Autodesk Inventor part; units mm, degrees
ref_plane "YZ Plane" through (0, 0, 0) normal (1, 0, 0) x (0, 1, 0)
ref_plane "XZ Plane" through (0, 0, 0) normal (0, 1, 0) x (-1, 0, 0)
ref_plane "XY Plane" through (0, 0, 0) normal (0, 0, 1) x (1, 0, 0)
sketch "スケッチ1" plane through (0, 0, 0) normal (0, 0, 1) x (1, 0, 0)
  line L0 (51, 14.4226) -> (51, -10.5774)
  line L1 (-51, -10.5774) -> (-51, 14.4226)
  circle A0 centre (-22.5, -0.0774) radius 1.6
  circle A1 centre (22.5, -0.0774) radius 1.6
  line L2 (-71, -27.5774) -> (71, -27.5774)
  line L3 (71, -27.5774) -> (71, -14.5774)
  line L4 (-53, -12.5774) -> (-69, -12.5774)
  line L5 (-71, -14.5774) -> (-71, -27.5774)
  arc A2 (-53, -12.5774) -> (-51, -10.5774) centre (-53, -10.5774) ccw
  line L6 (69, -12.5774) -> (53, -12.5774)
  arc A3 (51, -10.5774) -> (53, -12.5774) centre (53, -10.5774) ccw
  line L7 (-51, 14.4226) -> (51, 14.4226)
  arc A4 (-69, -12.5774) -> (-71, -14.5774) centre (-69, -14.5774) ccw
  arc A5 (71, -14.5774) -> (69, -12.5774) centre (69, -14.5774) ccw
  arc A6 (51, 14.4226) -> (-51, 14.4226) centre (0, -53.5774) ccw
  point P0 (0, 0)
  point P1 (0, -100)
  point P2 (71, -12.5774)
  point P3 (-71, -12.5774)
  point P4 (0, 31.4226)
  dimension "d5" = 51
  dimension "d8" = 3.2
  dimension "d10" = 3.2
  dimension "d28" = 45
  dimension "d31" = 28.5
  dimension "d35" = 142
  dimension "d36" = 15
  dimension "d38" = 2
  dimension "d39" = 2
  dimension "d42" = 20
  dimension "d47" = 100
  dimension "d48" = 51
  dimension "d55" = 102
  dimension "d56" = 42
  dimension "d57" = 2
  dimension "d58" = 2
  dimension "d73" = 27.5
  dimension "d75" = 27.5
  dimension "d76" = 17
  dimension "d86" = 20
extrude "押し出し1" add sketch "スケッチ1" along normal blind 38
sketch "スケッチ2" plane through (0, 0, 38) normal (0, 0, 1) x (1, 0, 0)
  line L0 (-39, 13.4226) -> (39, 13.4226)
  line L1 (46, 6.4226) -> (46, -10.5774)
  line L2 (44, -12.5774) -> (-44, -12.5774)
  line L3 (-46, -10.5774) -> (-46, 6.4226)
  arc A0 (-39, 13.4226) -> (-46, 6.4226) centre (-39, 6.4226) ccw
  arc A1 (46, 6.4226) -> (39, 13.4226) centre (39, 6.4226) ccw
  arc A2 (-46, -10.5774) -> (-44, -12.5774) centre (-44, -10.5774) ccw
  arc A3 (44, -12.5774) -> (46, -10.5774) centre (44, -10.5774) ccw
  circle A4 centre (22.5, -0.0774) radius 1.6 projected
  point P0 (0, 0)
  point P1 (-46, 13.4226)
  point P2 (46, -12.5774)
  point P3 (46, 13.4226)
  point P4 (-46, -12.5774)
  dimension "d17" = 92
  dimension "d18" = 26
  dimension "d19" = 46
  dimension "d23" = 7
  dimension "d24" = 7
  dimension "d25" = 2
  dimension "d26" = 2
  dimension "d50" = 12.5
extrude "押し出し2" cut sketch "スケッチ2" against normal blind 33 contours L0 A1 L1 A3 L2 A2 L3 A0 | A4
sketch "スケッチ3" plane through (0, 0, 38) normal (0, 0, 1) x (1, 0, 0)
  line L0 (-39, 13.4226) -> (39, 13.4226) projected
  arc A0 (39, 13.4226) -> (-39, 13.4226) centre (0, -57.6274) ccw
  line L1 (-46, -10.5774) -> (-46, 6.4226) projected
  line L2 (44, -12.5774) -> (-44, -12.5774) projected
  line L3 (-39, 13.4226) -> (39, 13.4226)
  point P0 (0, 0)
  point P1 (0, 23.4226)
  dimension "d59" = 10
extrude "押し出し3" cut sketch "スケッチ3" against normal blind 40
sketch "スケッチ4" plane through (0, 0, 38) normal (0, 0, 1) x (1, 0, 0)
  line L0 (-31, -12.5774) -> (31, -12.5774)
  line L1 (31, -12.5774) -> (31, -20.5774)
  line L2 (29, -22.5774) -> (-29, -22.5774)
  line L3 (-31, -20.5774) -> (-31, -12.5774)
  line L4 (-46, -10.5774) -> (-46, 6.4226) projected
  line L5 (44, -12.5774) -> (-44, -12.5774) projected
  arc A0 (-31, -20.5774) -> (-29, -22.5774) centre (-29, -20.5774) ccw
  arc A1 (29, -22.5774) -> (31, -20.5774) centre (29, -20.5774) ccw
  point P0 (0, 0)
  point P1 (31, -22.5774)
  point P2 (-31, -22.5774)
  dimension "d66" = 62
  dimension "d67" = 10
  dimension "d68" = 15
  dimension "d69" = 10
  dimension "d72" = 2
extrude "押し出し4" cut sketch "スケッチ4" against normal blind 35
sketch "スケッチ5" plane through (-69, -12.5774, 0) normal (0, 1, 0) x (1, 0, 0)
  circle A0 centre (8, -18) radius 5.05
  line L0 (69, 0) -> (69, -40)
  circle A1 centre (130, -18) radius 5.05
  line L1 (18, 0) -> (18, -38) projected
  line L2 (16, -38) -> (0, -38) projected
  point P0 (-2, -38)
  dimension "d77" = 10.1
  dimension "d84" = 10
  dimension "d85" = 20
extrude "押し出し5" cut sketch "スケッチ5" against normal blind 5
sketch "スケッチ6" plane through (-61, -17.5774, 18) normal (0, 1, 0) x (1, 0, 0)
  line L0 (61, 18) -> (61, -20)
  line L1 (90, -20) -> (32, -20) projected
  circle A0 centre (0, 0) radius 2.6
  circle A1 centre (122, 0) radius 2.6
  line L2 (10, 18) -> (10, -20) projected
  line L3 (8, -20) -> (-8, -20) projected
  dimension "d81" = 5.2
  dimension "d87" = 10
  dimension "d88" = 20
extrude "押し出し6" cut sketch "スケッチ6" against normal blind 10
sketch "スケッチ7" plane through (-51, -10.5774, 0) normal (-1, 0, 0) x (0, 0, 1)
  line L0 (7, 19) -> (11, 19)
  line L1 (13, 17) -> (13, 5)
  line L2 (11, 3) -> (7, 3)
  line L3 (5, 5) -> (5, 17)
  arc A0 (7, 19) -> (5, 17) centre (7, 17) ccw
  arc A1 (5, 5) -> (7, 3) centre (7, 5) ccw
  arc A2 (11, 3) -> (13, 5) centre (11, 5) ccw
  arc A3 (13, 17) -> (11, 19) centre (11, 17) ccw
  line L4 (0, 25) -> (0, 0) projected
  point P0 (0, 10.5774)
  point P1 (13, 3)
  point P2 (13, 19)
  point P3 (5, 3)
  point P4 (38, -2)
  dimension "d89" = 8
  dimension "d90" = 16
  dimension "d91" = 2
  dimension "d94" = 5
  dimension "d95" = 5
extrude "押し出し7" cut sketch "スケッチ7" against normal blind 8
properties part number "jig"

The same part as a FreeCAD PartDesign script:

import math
import FreeCAD as App
import Part
import Sketcher

V = App.Vector

doc = App.newDocument("Part")
params = doc.addObject("Spreadsheet::Sheet", "Params")
for row, (alias, value) in enumerate([
    ("sketch1_radius", "2 mm"),
    ("sketch1_diameter", "3.2 mm"),
    ("sketch1_width", "142 mm"),
    ("sketch1_radius2", "85 mm"),
    ("pad1_length", "38 mm"),
    ("sketch2_radius", "7 mm"),
    ("sketch2_radius2", "2 mm"),
    ("pocket1_length", "33 mm"),
    ("sketch3_width", "78 mm"),
    ("sketch3_radius", "81.05 mm"),
    ("pocket2_length", "40 mm"),
    ("sketch4_radius", "2 mm"),
    ("sketch4_width", "62 mm"),
    ("pocket3_length", "35 mm"),
    ("sketch5_diameter", "10.1 mm"),
    ("pocket4_length", "5 mm"),
    ("sketch6_diameter", "5.2 mm"),
    ("pocket5_length", "10 mm"),
    ("sketch7_radius", "2 mm"),
    ("sketch7_width", "12 mm"),
    ("pocket6_length", "8 mm"),
], start=1):
    params.set(f"A{row}", alias)
    params.set(f"B{row}", "=" + value)
    params.setAlias(f"B{row}", alias)

body = doc.addObject("PartDesign::Body", "Body")

# Sketch on XY plane
sketch1 = body.newObject("Sketcher::SketchObject", "Sketch")
sketch1.AttachmentSupport = (doc.getObject("XY_Plane"), [""])
sketch1.MapMode = "FlatFace"
sketch1.addGeometry([
    Part.LineSegment(V(51, -10.5774, 0), V(51, 14.4226, 0)),  # 0
    Part.ArcOfCircle(Part.Circle(V(0, -53.5774, 0), V(0, 0, 1), 85), math.radians(53.130102), math.radians(126.869898)),  # 1
    Part.LineSegment(V(-51, 14.4226, 0), V(-51, -10.5774, 0)),  # 2
    Part.ArcOfCircle(Part.Circle(V(-53, -10.5774, 0), V(0, 0, 1), 2), math.radians(-90), math.radians(0)),  # 3
    Part.LineSegment(V(-53, -12.5774, 0), V(-69, -12.5774, 0)),  # 4
    Part.ArcOfCircle(Part.Circle(V(-69, -14.5774, 0), V(0, 0, 1), 2), math.radians(90), math.radians(180)),  # 5
    Part.LineSegment(V(-71, -14.5774, 0), V(-71, -27.5774, 0)),  # 6
    Part.LineSegment(V(-71, -27.5774, 0), V(71, -27.5774, 0)),  # 7
    Part.LineSegment(V(71, -27.5774, 0), V(71, -14.5774, 0)),  # 8
    Part.ArcOfCircle(Part.Circle(V(69, -14.5774, 0), V(0, 0, 1), 2), math.radians(0), math.radians(90)),  # 9
    Part.LineSegment(V(69, -12.5774, 0), V(53, -12.5774, 0)),  # 10
    Part.ArcOfCircle(Part.Circle(V(53, -10.5774, 0), V(0, 0, 1), 2), math.radians(180), math.radians(270)),  # 11
    Part.Circle(V(-22.5, -0.0774, 0), V(0, 0, 1), 1.6),  # 12
    Part.Circle(V(22.5, -0.0774, 0), V(0, 0, 1), 1.6),  # 13
], False)
sketch1.addConstraint([
    Sketcher.Constraint("Coincident", 0, 2, 1, 1),
    Sketcher.Constraint("Coincident", 1, 2, 2, 1),
    Sketcher.Constraint("Tangent", 2, 2, 3, 2),
    Sketcher.Constraint("Tangent", 3, 1, 4, 1),
    Sketcher.Constraint("Tangent", 4, 2, 5, 1),
    Sketcher.Constraint("Tangent", 5, 2, 6, 1),
    Sketcher.Constraint("Coincident", 6, 2, 7, 1),
    Sketcher.Constraint("Coincident", 7, 2, 8, 1),
    Sketcher.Constraint("Tangent", 8, 2, 9, 1),
    Sketcher.Constraint("Tangent", 9, 2, 10, 1),
    Sketcher.Constraint("Tangent", 10, 2, 11, 2),
    Sketcher.Constraint("Tangent", 11, 1, 0, 1),
    Sketcher.Constraint("Vertical", 0),
    Sketcher.Constraint("Vertical", 2),
    Sketcher.Constraint("Horizontal", 4),
    Sketcher.Constraint("Vertical", 6),
    Sketcher.Constraint("Horizontal", 7),
    Sketcher.Constraint("Vertical", 8),
    Sketcher.Constraint("Horizontal", 10),
    Sketcher.Constraint("Equal", 3, 5),
    Sketcher.Constraint("Equal", 5, 9),
    Sketcher.Constraint("Equal", 9, 11),
    Sketcher.Constraint("Equal", 12, 13),
    Sketcher.Constraint("Symmetric", 5, 3, 9, 3, -2),
    Sketcher.Constraint("Symmetric", 12, 3, 13, 3, -2),
    Sketcher.Constraint("Symmetric", 0, 2, 1, 2, -2),
    Sketcher.Constraint("Radius", 3, 2.0),
    Sketcher.Constraint("Diameter", 12, 3.2),
    Sketcher.Constraint("DistanceX", 7, 1, 7, 2, 142.0),
    Sketcher.Constraint("DistanceX", -1, 1, 0, 2, 51.0),
    Sketcher.Constraint("Radius", 1, 85.0),
    Sketcher.Constraint("DistanceX", 12, 3, 13, 3, 45.0),
    Sketcher.Constraint("DistanceY", 6, 2, 4, 2, 15.0),
    Sketcher.Constraint("DistanceY", 7, 2, 0, 2, 42.0),
    Sketcher.Constraint("DistanceY", 7, 2, 13, 3, 27.5),
    Sketcher.Constraint("DistanceY", 1, 3, -1, 1, 53.5774),
])
sketch1.setExpression("Constraints[26]", "Params.sketch1_radius")
sketch1.setExpression("Constraints[27]", "Params.sketch1_diameter")
sketch1.setExpression("Constraints[28]", "Params.sketch1_width")
sketch1.setExpression("Constraints[30]", "Params.sketch1_radius2")
pad1 = body.newObject("PartDesign::Pad", "Pad")
pad1.Profile = sketch1
pad1.setExpression("Length", "Params.pad1_length")

# Sketch on XY plane
sketch2 = body.newObject("Sketcher::SketchObject", "Sketch001")
sketch2.AttachmentSupport = (doc.getObject("XY_Plane"), [""])
sketch2.MapMode = "FlatFace"
sketch2.AttachmentOffset = App.Placement(V(0, 0, 38), App.Rotation())
sketch2.addGeometry([
    Part.LineSegment(V(39, 13.4226, 0), V(-39, 13.4226, 0)),  # 0
    Part.ArcOfCircle(Part.Circle(V(-39, 6.4226, 0), V(0, 0, 1), 7), math.radians(90), math.radians(180)),  # 1
    Part.LineSegment(V(-46, 6.4226, 0), V(-46, -10.5774, 0)),  # 2
    Part.ArcOfCircle(Part.Circle(V(-44, -10.5774, 0), V(0, 0, 1), 2), math.radians(180), math.radians(270)),  # 3
    Part.LineSegment(V(-44, -12.5774, 0), V(44, -12.5774, 0)),  # 4
    Part.ArcOfCircle(Part.Circle(V(44, -10.5774, 0), V(0, 0, 1), 2), math.radians(-90), math.radians(0)),  # 5
    Part.LineSegment(V(46, -10.5774, 0), V(46, 6.4226, 0)),  # 6
    Part.ArcOfCircle(Part.Circle(V(39, 6.4226, 0), V(0, 0, 1), 7), math.radians(0), math.radians(90)),  # 7
], False)
sketch2.addConstraint([
    Sketcher.Constraint("Tangent", 0, 2, 1, 1),
    Sketcher.Constraint("Tangent", 1, 2, 2, 1),
    Sketcher.Constraint("Tangent", 2, 2, 3, 1),
    Sketcher.Constraint("Tangent", 3, 2, 4, 1),
    Sketcher.Constraint("Tangent", 4, 2, 5, 1),
    Sketcher.Constraint("Tangent", 5, 2, 6, 1),
    Sketcher.Constraint("Tangent", 6, 2, 7, 1),
    Sketcher.Constraint("Tangent", 7, 2, 0, 1),
    Sketcher.Constraint("Horizontal", 0),
    Sketcher.Constraint("Vertical", 2),
    Sketcher.Constraint("Horizontal", 4),
    Sketcher.Constraint("Vertical", 6),
    Sketcher.Constraint("Equal", 3, 5),
    Sketcher.Constraint("Equal", 1, 7),
    Sketcher.Constraint("Radius", 1, 7.0),
    Sketcher.Constraint("Radius", 3, 2.0),
    Sketcher.Constraint("DistanceX", 1, 2, -1, 1, 46.0),
    Sketcher.Constraint("DistanceX", -1, 1, 5, 2, 46.0),
    Sketcher.Constraint("DistanceY", 3, 2, 0, 2, 26.0),
    Sketcher.Constraint("DistanceY", -1, 1, 1, 3, 6.4226),
])
sketch2.setExpression("Constraints[14]", "Params.sketch2_radius")
sketch2.setExpression("Constraints[15]", "Params.sketch2_radius2")
pocket1 = body.newObject("PartDesign::Pocket", "Pocket")
pocket1.Profile = sketch2
pocket1.setExpression("Length", "Params.pocket1_length")

# Sketch on XY plane
sketch3 = body.newObject("Sketcher::SketchObject", "Sketch002")
sketch3.AttachmentSupport = (doc.getObject("XY_Plane"), [""])
sketch3.MapMode = "FlatFace"
sketch3.AttachmentOffset = App.Placement(V(0, 0, 38), App.Rotation())
sketch3.addGeometry([
    Part.ArcOfCircle(Part.Circle(V(0, -57.6274, 0), V(0, 0, 1), 81.05), math.radians(61.237211), math.radians(118.762789)),
    Part.LineSegment(V(-39, 13.4226, 0), V(39, 13.4226, 0)),
], False)
sketch3.addConstraint([
    Sketcher.Constraint("Coincident", 0, 1, 1, 2),
    Sketcher.Constraint("Coincident", 1, 1, 0, 2),
    Sketcher.Constraint("Horizontal", 1),
    Sketcher.Constraint("PointOnObject", 0, 3, -2),
    Sketcher.Constraint("DistanceX", 1, 1, 1, 2, 78.0),
    Sketcher.Constraint("Radius", 0, 81.05),
    Sketcher.Constraint("DistanceY", 0, 3, -1, 1, 57.6274),
])
sketch3.setExpression("Constraints[4]", "Params.sketch3_width")
sketch3.setExpression("Constraints[5]", "Params.sketch3_radius")
pocket2 = body.newObject("PartDesign::Pocket", "Pocket001")
pocket2.Profile = sketch3
pocket2.setExpression("Length", "Params.pocket2_length")

# Sketch on XY plane
sketch4 = body.newObject("Sketcher::SketchObject", "Sketch003")
sketch4.AttachmentSupport = (doc.getObject("XY_Plane"), [""])
sketch4.MapMode = "FlatFace"
sketch4.AttachmentOffset = App.Placement(V(0, 0, 38), App.Rotation())
sketch4.addGeometry([
    Part.LineSegment(V(31, -12.5774, 0), V(-31, -12.5774, 0)),  # 0
    Part.LineSegment(V(-31, -12.5774, 0), V(-31, -20.5774, 0)),  # 1
    Part.ArcOfCircle(Part.Circle(V(-29, -20.5774, 0), V(0, 0, 1), 2), math.radians(180), math.radians(270)),  # 2
    Part.LineSegment(V(-29, -22.5774, 0), V(29, -22.5774, 0)),  # 3
    Part.ArcOfCircle(Part.Circle(V(29, -20.5774, 0), V(0, 0, 1), 2), math.radians(-90), math.radians(0)),  # 4
    Part.LineSegment(V(31, -20.5774, 0), V(31, -12.5774, 0)),  # 5
], False)
sketch4.addConstraint([
    Sketcher.Constraint("Coincident", 0, 2, 1, 1),
    Sketcher.Constraint("Tangent", 1, 2, 2, 1),
    Sketcher.Constraint("Tangent", 2, 2, 3, 1),
    Sketcher.Constraint("Tangent", 3, 2, 4, 1),
    Sketcher.Constraint("Tangent", 4, 2, 5, 1),
    Sketcher.Constraint("Coincident", 5, 2, 0, 1),
    Sketcher.Constraint("Horizontal", 0),
    Sketcher.Constraint("Vertical", 1),
    Sketcher.Constraint("Horizontal", 3),
    Sketcher.Constraint("Vertical", 5),
    Sketcher.Constraint("Equal", 2, 4),
    Sketcher.Constraint("Radius", 2, 2.0),
    Sketcher.Constraint("DistanceX", 0, 2, 0, 1, 62.0),
    Sketcher.Constraint("DistanceY", 2, 2, 0, 2, 10.0),
    Sketcher.Constraint("DistanceX", 2, 3, -1, 1, 29.0),
    Sketcher.Constraint("DistanceY", 2, 3, -1, 1, 20.5774),
])
sketch4.setExpression("Constraints[11]", "Params.sketch4_radius")
sketch4.setExpression("Constraints[12]", "Params.sketch4_width")
pocket3 = body.newObject("PartDesign::Pocket", "Pocket002")
pocket3.Profile = sketch4
pocket3.setExpression("Length", "Params.pocket3_length")

# Sketch on XZ plane
sketch5 = body.newObject("Sketcher::SketchObject", "Sketch004")
sketch5.AttachmentSupport = (doc.getObject("XZ_Plane"), [""])
sketch5.MapMode = "FlatFace"
sketch5.AttachmentOffset = App.Placement(V(0, 0, 12.5774), App.Rotation())
sketch5.addGeometry([
    Part.Circle(V(-61, 18, 0), V(0, 0, 1), 5.05),
    Part.Circle(V(61, 18, 0), V(0, 0, 1), 5.05),
], False)
sketch5.addConstraint([
    Sketcher.Constraint("Equal", 0, 1),
    Sketcher.Constraint("Symmetric", 0, 3, 1, 3, -2),
    Sketcher.Constraint("Diameter", 0, 10.1),
    Sketcher.Constraint("DistanceX", 0, 3, -1, 1, 61.0),
    Sketcher.Constraint("DistanceY", -1, 1, 0, 3, 18.0),
])
sketch5.setExpression("Constraints[2]", "Params.sketch5_diameter")
pocket4 = body.newObject("PartDesign::Pocket", "Pocket003")
pocket4.Profile = sketch5
pocket4.setExpression("Length", "Params.pocket4_length")
pocket4.Reversed = True

# Sketch on XZ plane
sketch6 = body.newObject("Sketcher::SketchObject", "Sketch005")
sketch6.AttachmentSupport = (doc.getObject("XZ_Plane"), [""])
sketch6.MapMode = "FlatFace"
sketch6.AttachmentOffset = App.Placement(V(0, 0, 17.5774), App.Rotation())
sketch6.addGeometry([
    Part.Circle(V(-61, 18, 0), V(0, 0, 1), 2.6),
    Part.Circle(V(61, 18, 0), V(0, 0, 1), 2.6),
], False)
sketch6.addConstraint([
    Sketcher.Constraint("Equal", 0, 1),
    Sketcher.Constraint("Symmetric", 0, 3, 1, 3, -2),
    Sketcher.Constraint("Diameter", 0, 5.2),
    Sketcher.Constraint("DistanceX", 0, 3, -1, 1, 61.0),
    Sketcher.Constraint("DistanceY", -1, 1, 0, 3, 18.0),
])
sketch6.setExpression("Constraints[2]", "Params.sketch6_diameter")
pocket5 = body.newObject("PartDesign::Pocket", "Pocket004")
pocket5.Profile = sketch6
pocket5.setExpression("Length", "Params.pocket5_length")
pocket5.Reversed = True

# Sketch on YZ plane
sketch7 = body.newObject("Sketcher::SketchObject", "Sketch006")
sketch7.AttachmentSupport = (doc.getObject("YZ_Plane"), [""])
sketch7.MapMode = "FlatFace"
sketch7.AttachmentOffset = App.Placement(V(0, 0, -51), App.Rotation())
sketch7.addGeometry([
    Part.LineSegment(V(8.4226, 11, 0), V(8.4226, 7, 0)),  # 0
    Part.ArcOfCircle(Part.Circle(V(6.4226, 7, 0), V(0, 0, 1), 2), math.radians(-90), math.radians(0)),  # 1
    Part.LineSegment(V(6.4226, 5, 0), V(-5.5774, 5, 0)),  # 2
    Part.ArcOfCircle(Part.Circle(V(-5.5774, 7, 0), V(0, 0, 1), 2), math.radians(180), math.radians(270)),  # 3
    Part.LineSegment(V(-7.5774, 7, 0), V(-7.5774, 11, 0)),  # 4
    Part.ArcOfCircle(Part.Circle(V(-5.5774, 11, 0), V(0, 0, 1), 2), math.radians(90), math.radians(180)),  # 5
    Part.LineSegment(V(-5.5774, 13, 0), V(6.4226, 13, 0)),  # 6
    Part.ArcOfCircle(Part.Circle(V(6.4226, 11, 0), V(0, 0, 1), 2), math.radians(0), math.radians(90)),  # 7
], False)
sketch7.addConstraint([
    Sketcher.Constraint("Tangent", 0, 2, 1, 2),
    Sketcher.Constraint("Tangent", 1, 1, 2, 1),
    Sketcher.Constraint("Tangent", 2, 2, 3, 2),
    Sketcher.Constraint("Tangent", 3, 1, 4, 1),
    Sketcher.Constraint("Tangent", 4, 2, 5, 2),
    Sketcher.Constraint("Tangent", 5, 1, 6, 1),
    Sketcher.Constraint("Tangent", 6, 2, 7, 2),
    Sketcher.Constraint("Tangent", 7, 1, 0, 1),
    Sketcher.Constraint("Vertical", 0),
    Sketcher.Constraint("Horizontal", 2),
    Sketcher.Constraint("Vertical", 4),
    Sketcher.Constraint("Horizontal", 6),
    Sketcher.Constraint("Equal", 1, 3),
    Sketcher.Constraint("Equal", 3, 5),
    Sketcher.Constraint("Equal", 5, 7),
    Sketcher.Constraint("Radius", 1, 2.0),
    Sketcher.Constraint("DistanceY", -1, 1, 1, 1, 5.0),
    Sketcher.Constraint("DistanceY", 2, 2, 5, 1, 8.0),
    Sketcher.Constraint("DistanceX", 2, 2, 2, 1, 12.0),
    Sketcher.Constraint("DistanceX", -1, 1, 1, 3, 6.4226),
])
sketch7.setExpression("Constraints[15]", "Params.sketch7_radius")
sketch7.setExpression("Constraints[18]", "Params.sketch7_width")
pocket6 = body.newObject("PartDesign::Pocket", "Pocket005")
pocket6.Profile = sketch7
pocket6.setExpression("Length", "Params.pocket6_length")
pocket6.Reversed = True

doc.recompute()
